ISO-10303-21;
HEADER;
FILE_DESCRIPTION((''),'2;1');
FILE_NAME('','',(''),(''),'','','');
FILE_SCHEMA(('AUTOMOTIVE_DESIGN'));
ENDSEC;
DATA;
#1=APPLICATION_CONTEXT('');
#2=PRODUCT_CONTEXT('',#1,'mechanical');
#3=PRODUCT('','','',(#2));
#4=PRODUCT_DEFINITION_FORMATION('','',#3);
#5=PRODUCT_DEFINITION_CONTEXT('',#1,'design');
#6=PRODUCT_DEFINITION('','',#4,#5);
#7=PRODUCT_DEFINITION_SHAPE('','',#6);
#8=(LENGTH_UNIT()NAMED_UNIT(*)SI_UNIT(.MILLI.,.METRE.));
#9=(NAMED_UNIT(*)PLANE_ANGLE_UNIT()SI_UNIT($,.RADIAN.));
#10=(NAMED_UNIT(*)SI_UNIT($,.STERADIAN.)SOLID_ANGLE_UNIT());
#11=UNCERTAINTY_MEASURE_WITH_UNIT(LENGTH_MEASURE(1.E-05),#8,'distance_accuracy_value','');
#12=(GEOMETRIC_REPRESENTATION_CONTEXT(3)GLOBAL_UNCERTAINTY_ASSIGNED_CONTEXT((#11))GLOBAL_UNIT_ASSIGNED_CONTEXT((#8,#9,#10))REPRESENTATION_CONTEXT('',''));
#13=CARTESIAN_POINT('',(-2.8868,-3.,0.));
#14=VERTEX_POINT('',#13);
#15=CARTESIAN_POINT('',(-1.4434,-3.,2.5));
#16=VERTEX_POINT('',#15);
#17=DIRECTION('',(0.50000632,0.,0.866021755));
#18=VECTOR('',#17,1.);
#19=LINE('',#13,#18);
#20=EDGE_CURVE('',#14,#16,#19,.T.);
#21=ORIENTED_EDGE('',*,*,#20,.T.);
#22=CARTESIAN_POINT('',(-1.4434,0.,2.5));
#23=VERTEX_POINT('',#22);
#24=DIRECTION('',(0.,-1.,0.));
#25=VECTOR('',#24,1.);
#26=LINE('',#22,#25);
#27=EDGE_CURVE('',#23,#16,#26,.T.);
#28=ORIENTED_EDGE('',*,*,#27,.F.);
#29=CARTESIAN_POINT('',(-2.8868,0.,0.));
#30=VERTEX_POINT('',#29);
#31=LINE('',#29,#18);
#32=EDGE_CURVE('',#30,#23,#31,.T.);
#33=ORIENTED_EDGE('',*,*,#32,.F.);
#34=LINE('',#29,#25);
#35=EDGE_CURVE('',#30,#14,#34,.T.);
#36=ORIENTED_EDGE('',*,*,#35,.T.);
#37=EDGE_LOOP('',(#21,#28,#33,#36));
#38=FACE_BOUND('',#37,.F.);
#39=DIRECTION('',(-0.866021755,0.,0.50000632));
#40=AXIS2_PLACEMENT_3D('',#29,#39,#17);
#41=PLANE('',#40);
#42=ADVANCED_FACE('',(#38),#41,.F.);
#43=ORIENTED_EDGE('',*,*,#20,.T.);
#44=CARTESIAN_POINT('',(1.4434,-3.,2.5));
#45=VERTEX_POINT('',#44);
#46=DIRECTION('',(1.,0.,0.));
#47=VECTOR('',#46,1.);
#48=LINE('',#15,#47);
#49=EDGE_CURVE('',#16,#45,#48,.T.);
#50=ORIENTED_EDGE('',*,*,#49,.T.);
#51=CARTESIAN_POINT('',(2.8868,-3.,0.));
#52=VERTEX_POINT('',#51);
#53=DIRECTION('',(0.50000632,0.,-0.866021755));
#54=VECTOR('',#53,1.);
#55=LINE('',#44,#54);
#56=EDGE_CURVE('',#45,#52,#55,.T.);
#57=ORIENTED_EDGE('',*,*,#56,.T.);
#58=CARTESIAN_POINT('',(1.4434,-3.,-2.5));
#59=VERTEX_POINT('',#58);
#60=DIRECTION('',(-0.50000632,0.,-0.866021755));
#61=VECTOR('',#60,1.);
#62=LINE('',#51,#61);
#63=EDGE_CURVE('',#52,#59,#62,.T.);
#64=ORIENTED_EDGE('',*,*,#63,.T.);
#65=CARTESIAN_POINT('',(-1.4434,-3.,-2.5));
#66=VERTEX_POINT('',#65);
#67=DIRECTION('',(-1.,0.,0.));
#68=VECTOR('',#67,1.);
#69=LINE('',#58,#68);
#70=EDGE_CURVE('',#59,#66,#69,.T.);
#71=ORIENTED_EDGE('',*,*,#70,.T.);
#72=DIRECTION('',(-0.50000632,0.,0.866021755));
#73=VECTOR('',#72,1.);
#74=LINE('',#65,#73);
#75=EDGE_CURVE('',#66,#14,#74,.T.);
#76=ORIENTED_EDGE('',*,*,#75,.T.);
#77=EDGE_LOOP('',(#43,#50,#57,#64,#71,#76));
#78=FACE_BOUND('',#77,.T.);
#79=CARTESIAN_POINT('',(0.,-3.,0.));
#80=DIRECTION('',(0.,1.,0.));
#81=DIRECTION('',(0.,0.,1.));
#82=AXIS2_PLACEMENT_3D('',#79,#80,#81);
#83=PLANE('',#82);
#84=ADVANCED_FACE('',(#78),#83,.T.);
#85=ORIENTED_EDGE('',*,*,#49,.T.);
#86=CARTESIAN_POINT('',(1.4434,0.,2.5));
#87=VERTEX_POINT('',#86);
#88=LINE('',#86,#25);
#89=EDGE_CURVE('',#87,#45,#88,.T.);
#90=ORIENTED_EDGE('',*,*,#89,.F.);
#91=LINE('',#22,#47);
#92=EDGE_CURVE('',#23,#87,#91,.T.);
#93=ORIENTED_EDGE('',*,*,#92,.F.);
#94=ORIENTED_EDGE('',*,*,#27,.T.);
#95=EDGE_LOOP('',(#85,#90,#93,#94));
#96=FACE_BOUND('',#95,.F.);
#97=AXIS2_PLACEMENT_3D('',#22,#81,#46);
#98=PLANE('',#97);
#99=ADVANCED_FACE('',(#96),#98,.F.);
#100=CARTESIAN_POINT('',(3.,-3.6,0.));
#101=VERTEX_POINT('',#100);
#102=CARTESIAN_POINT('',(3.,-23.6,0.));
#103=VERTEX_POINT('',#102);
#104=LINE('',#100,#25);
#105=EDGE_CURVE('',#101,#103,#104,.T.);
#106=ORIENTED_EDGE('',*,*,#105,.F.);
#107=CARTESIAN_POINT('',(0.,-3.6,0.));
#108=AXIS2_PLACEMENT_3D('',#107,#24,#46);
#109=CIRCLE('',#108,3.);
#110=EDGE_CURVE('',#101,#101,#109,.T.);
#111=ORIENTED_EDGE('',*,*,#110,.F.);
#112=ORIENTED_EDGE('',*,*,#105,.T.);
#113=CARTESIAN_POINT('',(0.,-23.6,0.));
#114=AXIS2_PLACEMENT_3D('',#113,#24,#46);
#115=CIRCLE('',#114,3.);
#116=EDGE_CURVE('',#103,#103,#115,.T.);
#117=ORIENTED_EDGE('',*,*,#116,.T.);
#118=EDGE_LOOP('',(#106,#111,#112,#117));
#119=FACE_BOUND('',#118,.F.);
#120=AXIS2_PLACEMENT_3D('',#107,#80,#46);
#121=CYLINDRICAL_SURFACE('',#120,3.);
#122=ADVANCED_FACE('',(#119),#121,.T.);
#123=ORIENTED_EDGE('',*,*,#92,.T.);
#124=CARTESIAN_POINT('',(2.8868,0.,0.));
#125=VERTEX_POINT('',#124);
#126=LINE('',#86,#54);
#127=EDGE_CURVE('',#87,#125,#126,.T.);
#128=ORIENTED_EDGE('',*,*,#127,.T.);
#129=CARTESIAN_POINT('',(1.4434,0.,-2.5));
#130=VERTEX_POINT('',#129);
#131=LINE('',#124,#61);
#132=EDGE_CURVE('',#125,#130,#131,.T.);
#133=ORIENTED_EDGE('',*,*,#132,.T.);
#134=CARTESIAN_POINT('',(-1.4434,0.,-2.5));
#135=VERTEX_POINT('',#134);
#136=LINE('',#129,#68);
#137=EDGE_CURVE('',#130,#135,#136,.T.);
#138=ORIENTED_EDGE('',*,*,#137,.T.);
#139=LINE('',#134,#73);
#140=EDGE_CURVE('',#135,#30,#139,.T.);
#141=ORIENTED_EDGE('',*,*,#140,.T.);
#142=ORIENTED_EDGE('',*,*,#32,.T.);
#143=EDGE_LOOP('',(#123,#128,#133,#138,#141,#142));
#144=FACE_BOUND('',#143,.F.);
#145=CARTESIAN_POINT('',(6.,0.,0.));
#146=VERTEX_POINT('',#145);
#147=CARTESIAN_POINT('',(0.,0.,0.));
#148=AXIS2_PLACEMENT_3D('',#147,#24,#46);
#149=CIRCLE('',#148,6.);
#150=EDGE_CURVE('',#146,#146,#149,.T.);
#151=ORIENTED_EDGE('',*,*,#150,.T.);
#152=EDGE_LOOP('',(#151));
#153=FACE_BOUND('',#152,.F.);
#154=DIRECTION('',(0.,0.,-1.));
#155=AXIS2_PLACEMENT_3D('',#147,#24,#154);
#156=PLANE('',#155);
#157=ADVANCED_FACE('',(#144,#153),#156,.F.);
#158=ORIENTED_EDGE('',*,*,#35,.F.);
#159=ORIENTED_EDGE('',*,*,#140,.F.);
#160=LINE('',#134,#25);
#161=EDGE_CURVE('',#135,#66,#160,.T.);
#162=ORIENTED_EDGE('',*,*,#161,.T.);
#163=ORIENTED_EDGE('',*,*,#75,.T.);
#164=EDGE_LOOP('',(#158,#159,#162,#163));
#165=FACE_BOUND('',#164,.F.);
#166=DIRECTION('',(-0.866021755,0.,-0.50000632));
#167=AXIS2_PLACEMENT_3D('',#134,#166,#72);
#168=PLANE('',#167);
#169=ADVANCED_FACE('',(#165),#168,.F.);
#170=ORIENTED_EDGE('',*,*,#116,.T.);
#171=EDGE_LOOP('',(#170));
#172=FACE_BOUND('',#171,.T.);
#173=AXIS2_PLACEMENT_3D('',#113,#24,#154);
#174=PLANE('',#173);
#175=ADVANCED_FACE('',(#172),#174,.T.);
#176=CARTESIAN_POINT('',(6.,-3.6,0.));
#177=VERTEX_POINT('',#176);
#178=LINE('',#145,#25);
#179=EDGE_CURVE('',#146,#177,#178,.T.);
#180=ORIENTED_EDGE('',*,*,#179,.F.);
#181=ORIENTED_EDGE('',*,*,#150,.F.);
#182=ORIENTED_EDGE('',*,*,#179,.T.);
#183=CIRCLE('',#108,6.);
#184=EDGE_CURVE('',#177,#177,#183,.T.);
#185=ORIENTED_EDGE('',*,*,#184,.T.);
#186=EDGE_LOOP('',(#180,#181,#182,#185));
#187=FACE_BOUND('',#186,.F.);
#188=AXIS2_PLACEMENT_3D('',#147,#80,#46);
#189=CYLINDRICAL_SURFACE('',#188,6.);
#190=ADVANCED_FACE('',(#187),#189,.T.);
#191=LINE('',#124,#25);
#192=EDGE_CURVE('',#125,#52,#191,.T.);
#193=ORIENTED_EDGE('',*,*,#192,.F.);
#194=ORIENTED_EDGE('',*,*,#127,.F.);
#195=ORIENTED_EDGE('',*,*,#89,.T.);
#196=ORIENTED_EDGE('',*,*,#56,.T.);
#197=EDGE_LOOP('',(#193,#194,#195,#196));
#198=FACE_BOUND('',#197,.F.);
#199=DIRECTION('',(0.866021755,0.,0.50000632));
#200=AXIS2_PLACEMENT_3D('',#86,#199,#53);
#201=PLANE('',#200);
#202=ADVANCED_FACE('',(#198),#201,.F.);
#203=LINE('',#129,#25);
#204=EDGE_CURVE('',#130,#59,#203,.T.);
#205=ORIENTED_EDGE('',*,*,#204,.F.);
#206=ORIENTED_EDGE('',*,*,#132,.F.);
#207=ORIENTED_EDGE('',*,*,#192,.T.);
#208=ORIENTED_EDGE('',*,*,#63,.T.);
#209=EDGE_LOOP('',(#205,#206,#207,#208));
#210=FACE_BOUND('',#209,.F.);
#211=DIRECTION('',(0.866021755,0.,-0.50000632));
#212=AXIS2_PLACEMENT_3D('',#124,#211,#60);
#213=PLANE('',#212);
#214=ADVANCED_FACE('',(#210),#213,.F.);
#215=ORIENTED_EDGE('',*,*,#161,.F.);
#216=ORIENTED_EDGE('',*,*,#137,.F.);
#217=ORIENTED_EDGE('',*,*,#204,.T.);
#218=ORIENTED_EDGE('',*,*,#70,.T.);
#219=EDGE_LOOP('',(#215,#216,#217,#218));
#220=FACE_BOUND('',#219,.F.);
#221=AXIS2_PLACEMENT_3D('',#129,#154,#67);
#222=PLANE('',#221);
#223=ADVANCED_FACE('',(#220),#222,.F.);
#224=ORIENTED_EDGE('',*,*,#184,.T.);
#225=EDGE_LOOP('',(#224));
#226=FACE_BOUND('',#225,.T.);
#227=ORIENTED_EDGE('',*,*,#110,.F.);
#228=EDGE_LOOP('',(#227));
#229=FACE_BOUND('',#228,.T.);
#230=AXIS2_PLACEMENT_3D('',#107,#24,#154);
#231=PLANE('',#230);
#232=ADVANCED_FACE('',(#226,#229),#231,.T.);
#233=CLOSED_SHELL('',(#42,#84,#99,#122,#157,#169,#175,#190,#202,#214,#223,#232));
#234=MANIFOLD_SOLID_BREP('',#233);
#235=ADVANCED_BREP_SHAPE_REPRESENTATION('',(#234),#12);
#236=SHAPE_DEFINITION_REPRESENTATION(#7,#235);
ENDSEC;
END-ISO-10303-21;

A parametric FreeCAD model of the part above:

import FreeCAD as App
import Part
import Sketcher
Q = App.Units.Quantity


def add_polygon(sketch, points):
    """Adds a closed chain of lines whose ends are joined by coincident constraints."""
    first, n = sketch.GeometryCount, len(points)
    for a, b in zip(points, points[1:] + points[:1]):
        sketch.addGeometry(Part.LineSegment(App.Vector(*a, 0), App.Vector(*b, 0)), False)
    for i in range(n):
        sketch.addConstraint(Sketcher.Constraint("Coincident", first + i, 2, first + (i + 1) % n, 1))

doc = App.newDocument("Part")
body = doc.addObject("PartDesign::Body", "Body")

sketch1 = body.newObject("Sketcher::SketchObject", "Sketch")
sketch1.AttachmentSupport = (doc.getObject("XZ_Plane"), [""])
sketch1.MapMode = "FlatFace"
sketch1.addGeometry(Part.Circle(App.Vector(0, 0, 0), App.Vector(0, 0, 1), 6), False)
sketch1.addConstraint([
    Sketcher.Constraint("Coincident", 0, 3, -1, 1),
    Sketcher.Constraint("Diameter", 0, 12.0),
])
pad1 = body.newObject("PartDesign::Pad", "Pad")
pad1.Profile = sketch1
pad1.Length = 3.6

sketch2 = body.newObject("Sketcher::SketchObject", "Sketch001")
sketch2.AttachmentSupport = (doc.getObject("XZ_Plane"), [""])
sketch2.MapMode = "FlatFace"
sketch2.AttachmentOffset = App.Placement(App.Vector(0, 0, 3.6), App.Rotation())
sketch2.addGeometry(Part.Circle(App.Vector(0, 0, 0), App.Vector(0, 0, 1), 3), False)
sketch2.addConstraint([
    Sketcher.Constraint("Coincident", 0, 3, -1, 1),
    Sketcher.Constraint("Diameter", 0, 6.0),
])
pad2 = body.newObject("PartDesign::Pad", "Pad001")
pad2.Profile = sketch2
pad2.Length = 20

sketch3 = body.newObject("Sketcher::SketchObject", "Sketch002")
sketch3.AttachmentSupport = (doc.getObject("XZ_Plane"), [""])
sketch3.MapMode = "FlatFace"
add_polygon(sketch3, [(2.9, 0), (1.4, -2.5), (-1.4, -2.5), (-2.9, 0), (-1.4, 2.5), (1.4, 2.5)])
sketch3.addConstraint([
    Sketcher.Constraint("Horizontal", 1),
    Sketcher.Constraint("Horizontal", 4),
    Sketcher.Constraint("Symmetric", 0, 2, 3, 2, -1, 1),
    Sketcher.Constraint("Symmetric", 2, 2, 5, 2, -1, 1),
    Sketcher.Constraint("PointOnObject", 2, 2, -1),
    Sketcher.Constraint("Parallel", 2, 5),
    Sketcher.Constraint("Vertical", 1, 2, 3, 2),
    Sketcher.Constraint("Angle", 0, Q("-120.0004 deg")),
    Sketcher.Constraint("DistanceY", 1, 2, 3, 2, 5.0),
    Sketcher.Constraint("DistanceX", 1, 2, 1, 1, 2.8868),
])
pocket1 = body.newObject("PartDesign::Pocket", "Pocket")
pocket1.Profile = sketch3
pocket1.Length = 3
pocket1.Reversed = True

doc.recompute()
